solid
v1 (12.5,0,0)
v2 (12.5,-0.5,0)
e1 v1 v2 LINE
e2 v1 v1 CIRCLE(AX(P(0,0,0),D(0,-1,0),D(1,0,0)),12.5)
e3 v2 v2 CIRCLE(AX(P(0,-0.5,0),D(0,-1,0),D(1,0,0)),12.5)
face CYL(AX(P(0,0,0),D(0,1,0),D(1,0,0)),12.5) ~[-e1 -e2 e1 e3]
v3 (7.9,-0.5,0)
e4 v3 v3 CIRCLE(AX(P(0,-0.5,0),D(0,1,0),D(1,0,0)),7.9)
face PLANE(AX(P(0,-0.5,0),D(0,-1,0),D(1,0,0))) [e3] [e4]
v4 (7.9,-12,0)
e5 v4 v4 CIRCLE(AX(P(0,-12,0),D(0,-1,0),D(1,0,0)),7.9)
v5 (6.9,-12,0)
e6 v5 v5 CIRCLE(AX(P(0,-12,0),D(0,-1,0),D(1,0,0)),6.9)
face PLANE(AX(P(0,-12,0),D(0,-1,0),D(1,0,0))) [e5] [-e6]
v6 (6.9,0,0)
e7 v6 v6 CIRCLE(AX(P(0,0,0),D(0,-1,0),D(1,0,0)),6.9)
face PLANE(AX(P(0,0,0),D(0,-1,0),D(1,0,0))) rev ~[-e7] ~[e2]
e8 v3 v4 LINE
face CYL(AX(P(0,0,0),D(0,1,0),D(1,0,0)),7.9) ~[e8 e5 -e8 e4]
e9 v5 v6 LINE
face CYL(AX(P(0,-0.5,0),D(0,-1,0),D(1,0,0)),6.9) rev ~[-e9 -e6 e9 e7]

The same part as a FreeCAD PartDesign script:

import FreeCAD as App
import Part
import Sketcher

doc = App.newDocument("Part")
body = doc.addObject("PartDesign::Body", "Body")

sketch1 = body.newObject("Sketcher::SketchObject", "Sketch")
sketch1.AttachmentSupport = (doc.getObject("XZ_Plane"), [""])
sketch1.MapMode = "FlatFace"
sketch1.addGeometry(Part.Circle(App.Vector(0, 0, 0), App.Vector(0, 0, 1), 8), False)
sketch1.addGeometry(Part.Circle(App.Vector(0, 0, 0), App.Vector(0, 0, 1), 7), False)
sketch1.addConstraint(Sketcher.Constraint("Coincident", 0, 3, -1, 1))
sketch1.addConstraint(Sketcher.Constraint("Coincident", 1, 3, -1, 1))
sketch1.addConstraint(Sketcher.Constraint("Diameter", 0, 15.8))
sketch1.addConstraint(Sketcher.Constraint("Diameter", 1, 13.8))
pad1 = body.newObject("PartDesign::Pad", "Pad")
pad1.Profile = sketch1
pad1.Length = 12

sketch2 = body.newObject("Sketcher::SketchObject", "Sketch001")
sketch2.AttachmentSupport = (doc.getObject("XZ_Plane"), [""])
sketch2.MapMode = "FlatFace"
sketch2.addGeometry(Part.Circle(App.Vector(0, 0, 0), App.Vector(0, 0, 1), 12), False)
sketch2.addConstraint(Sketcher.Constraint("Coincident", 0, 3, -1, 1))
sketch2.addConstraint(Sketcher.Constraint("Diameter", 0, 25.0))
pad2 = body.newObject("PartDesign::Pad", "Pad001")
pad2.Profile = sketch2
pad2.Length = 0.5

sketch3 = body.newObject("Sketcher::SketchObject", "Sketch002")
sketch3.AttachmentSupport = (doc.getObject("XZ_Plane"), [""])
sketch3.MapMode = "FlatFace"
sketch3.AttachmentOffset = App.Placement(App.Vector(0, 0, 0.5), App.Rotation())
sketch3.addGeometry(Part.Circle(App.Vector(0, 0, 0), App.Vector(0, 0, 1), 7), False)
sketch3.addConstraint(Sketcher.Constraint("Coincident", 0, 3, -1, 1))
sketch3.addConstraint(Sketcher.Constraint("Diameter", 0, 13.8))
pocket1 = body.newObject("PartDesign::Pocket", "Pocket")
pocket1.Profile = sketch3
pocket1.Length = 0.5

doc.recompute()
